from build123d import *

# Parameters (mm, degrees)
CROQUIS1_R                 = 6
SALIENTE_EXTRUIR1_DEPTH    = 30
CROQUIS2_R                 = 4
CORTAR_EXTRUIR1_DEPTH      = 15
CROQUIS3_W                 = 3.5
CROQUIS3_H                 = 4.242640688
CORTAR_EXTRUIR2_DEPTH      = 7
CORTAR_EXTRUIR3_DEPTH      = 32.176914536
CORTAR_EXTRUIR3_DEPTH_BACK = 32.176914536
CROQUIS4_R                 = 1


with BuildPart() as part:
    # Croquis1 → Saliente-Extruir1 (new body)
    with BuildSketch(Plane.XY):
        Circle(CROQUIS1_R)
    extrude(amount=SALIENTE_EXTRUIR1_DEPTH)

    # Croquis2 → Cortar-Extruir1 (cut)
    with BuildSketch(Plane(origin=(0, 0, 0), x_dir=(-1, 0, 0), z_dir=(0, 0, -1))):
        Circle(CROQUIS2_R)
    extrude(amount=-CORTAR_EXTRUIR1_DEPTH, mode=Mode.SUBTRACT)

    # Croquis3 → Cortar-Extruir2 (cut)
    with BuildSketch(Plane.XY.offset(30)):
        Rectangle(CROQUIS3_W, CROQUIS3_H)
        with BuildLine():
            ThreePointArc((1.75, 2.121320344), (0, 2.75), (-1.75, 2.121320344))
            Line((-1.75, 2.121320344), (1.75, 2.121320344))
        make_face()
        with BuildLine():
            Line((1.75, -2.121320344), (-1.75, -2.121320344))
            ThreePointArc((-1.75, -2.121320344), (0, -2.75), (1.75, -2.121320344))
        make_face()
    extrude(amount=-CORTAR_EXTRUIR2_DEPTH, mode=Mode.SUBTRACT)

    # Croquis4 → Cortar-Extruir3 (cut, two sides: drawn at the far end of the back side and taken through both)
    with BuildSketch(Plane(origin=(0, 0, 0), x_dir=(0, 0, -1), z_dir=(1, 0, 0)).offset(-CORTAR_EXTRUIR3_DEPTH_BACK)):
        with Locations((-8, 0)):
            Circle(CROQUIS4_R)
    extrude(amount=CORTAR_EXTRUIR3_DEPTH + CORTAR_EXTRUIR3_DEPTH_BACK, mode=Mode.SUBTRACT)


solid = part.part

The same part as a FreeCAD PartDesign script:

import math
import FreeCAD as App
import Part
import Sketcher
Q = App.Units.Quantity

doc = App.newDocument("Part")
body = doc.addObject("PartDesign::Body", "Body")

sketch1 = body.newObject("Sketcher::SketchObject", "Sketch")
sketch1.AttachmentSupport = (doc.getObject("XY_Plane"), [""])
sketch1.MapMode = "FlatFace"
sketch1.addGeometry(Part.Circle(App.Vector(0, 0, 0), App.Vector(0, 0, 1), 6), False)
sketch1.addConstraint([
    Sketcher.Constraint("Coincident", 0, 3, -1, 1),
    Sketcher.Constraint("Diameter", 0, Q("12 mm")),
])
pad1 = body.newObject("PartDesign::Pad", "Pad")
pad1.Profile = sketch1
pad1.Length = 30

sketch2 = body.newObject("Sketcher::SketchObject", "Sketch001")
sketch2.AttachmentSupport = (doc.getObject("XY_Plane"), [""])
sketch2.MapMode = "FlatFace"
sketch2.addGeometry(Part.Circle(App.Vector(0, 0, 0), App.Vector(0, 0, 1), 4), False)
sketch2.addConstraint([
    Sketcher.Constraint("Coincident", 0, 3, -1, 1),
    Sketcher.Constraint("Diameter", 0, Q("8 mm")),
])
pocket1 = body.newObject("PartDesign::Pocket", "Pocket")
pocket1.Profile = sketch2
pocket1.Length = 15
pocket1.Reversed = True

sketch3 = body.newObject("Sketcher::SketchObject", "Sketch002")
sketch3.AttachmentSupport = (doc.getObject("XY_Plane"), [""])
sketch3.MapMode = "FlatFace"
sketch3.AttachmentOffset = App.Placement(App.Vector(0, 0, 30), App.Rotation())
sketch3.addGeometry([
    Part.LineSegment(App.Vector(-1.75, 2.12132, 0), App.Vector(-1.75, -2.12132, 0)),
    Part.ArcOfCircle(Part.Circle(App.Vector(0, 0, 0), App.Vector(0, 0, 1), 2.75), math.radians(-129.521196), math.radians(-50.478804)),
    Part.LineSegment(App.Vector(1.75, -2.12132, 0), App.Vector(1.75, 2.12132, 0)),
    Part.ArcOfCircle(Part.Circle(App.Vector(0, 0, 0), App.Vector(0, 0, 1), 2.75), math.radians(50.478804), math.radians(129.521196)),
], False)
sketch3.addConstraint([
    Sketcher.Constraint("Coincident", 0, 2, 1, 1),
    Sketcher.Constraint("Coincident", 1, 2, 2, 1),
    Sketcher.Constraint("Coincident", 2, 2, 3, 1),
    Sketcher.Constraint("Coincident", 3, 2, 0, 1),
    Sketcher.Constraint("Vertical", 0),
    Sketcher.Constraint("Vertical", 2),
    Sketcher.Constraint("Coincident", 1, 3, -1, 1),
    Sketcher.Constraint("Coincident", 3, 3, -1, 1),
    Sketcher.Constraint("Equal", 1, 3),
    Sketcher.Constraint("Horizontal", 0, 2, 1, 2),
    Sketcher.Constraint("Radius", 1, Q("2.75 mm")),
    Sketcher.Constraint("DistanceX", 0, 2, 1, 2, Q("3.5 mm")),
])
pocket2 = body.newObject("PartDesign::Pocket", "Pocket001")
pocket2.Profile = sketch3
pocket2.Length = 7

sketch4 = body.newObject("Sketcher::SketchObject", "Sketch003")
sketch4.AttachmentSupport = (doc.getObject("YZ_Plane"), [""])
sketch4.MapMode = "FlatFace"
sketch4.addGeometry(Part.Circle(App.Vector(0, 8, 0), App.Vector(0, 0, 1), 1), False)
sketch4.addConstraint([
    Sketcher.Constraint("PointOnObject", 0, 3, -2),
    Sketcher.Constraint("Diameter", 0, Q("2 mm")),
    Sketcher.Constraint("DistanceY", -1, 1, 0, 3, Q("8 mm")),
])
pocket3 = body.newObject("PartDesign::Pocket", "Pocket002")
pocket3.Profile = sketch4
pocket3.Type = "ThroughAll"
pocket3.Midplane = True

doc.recompute()
